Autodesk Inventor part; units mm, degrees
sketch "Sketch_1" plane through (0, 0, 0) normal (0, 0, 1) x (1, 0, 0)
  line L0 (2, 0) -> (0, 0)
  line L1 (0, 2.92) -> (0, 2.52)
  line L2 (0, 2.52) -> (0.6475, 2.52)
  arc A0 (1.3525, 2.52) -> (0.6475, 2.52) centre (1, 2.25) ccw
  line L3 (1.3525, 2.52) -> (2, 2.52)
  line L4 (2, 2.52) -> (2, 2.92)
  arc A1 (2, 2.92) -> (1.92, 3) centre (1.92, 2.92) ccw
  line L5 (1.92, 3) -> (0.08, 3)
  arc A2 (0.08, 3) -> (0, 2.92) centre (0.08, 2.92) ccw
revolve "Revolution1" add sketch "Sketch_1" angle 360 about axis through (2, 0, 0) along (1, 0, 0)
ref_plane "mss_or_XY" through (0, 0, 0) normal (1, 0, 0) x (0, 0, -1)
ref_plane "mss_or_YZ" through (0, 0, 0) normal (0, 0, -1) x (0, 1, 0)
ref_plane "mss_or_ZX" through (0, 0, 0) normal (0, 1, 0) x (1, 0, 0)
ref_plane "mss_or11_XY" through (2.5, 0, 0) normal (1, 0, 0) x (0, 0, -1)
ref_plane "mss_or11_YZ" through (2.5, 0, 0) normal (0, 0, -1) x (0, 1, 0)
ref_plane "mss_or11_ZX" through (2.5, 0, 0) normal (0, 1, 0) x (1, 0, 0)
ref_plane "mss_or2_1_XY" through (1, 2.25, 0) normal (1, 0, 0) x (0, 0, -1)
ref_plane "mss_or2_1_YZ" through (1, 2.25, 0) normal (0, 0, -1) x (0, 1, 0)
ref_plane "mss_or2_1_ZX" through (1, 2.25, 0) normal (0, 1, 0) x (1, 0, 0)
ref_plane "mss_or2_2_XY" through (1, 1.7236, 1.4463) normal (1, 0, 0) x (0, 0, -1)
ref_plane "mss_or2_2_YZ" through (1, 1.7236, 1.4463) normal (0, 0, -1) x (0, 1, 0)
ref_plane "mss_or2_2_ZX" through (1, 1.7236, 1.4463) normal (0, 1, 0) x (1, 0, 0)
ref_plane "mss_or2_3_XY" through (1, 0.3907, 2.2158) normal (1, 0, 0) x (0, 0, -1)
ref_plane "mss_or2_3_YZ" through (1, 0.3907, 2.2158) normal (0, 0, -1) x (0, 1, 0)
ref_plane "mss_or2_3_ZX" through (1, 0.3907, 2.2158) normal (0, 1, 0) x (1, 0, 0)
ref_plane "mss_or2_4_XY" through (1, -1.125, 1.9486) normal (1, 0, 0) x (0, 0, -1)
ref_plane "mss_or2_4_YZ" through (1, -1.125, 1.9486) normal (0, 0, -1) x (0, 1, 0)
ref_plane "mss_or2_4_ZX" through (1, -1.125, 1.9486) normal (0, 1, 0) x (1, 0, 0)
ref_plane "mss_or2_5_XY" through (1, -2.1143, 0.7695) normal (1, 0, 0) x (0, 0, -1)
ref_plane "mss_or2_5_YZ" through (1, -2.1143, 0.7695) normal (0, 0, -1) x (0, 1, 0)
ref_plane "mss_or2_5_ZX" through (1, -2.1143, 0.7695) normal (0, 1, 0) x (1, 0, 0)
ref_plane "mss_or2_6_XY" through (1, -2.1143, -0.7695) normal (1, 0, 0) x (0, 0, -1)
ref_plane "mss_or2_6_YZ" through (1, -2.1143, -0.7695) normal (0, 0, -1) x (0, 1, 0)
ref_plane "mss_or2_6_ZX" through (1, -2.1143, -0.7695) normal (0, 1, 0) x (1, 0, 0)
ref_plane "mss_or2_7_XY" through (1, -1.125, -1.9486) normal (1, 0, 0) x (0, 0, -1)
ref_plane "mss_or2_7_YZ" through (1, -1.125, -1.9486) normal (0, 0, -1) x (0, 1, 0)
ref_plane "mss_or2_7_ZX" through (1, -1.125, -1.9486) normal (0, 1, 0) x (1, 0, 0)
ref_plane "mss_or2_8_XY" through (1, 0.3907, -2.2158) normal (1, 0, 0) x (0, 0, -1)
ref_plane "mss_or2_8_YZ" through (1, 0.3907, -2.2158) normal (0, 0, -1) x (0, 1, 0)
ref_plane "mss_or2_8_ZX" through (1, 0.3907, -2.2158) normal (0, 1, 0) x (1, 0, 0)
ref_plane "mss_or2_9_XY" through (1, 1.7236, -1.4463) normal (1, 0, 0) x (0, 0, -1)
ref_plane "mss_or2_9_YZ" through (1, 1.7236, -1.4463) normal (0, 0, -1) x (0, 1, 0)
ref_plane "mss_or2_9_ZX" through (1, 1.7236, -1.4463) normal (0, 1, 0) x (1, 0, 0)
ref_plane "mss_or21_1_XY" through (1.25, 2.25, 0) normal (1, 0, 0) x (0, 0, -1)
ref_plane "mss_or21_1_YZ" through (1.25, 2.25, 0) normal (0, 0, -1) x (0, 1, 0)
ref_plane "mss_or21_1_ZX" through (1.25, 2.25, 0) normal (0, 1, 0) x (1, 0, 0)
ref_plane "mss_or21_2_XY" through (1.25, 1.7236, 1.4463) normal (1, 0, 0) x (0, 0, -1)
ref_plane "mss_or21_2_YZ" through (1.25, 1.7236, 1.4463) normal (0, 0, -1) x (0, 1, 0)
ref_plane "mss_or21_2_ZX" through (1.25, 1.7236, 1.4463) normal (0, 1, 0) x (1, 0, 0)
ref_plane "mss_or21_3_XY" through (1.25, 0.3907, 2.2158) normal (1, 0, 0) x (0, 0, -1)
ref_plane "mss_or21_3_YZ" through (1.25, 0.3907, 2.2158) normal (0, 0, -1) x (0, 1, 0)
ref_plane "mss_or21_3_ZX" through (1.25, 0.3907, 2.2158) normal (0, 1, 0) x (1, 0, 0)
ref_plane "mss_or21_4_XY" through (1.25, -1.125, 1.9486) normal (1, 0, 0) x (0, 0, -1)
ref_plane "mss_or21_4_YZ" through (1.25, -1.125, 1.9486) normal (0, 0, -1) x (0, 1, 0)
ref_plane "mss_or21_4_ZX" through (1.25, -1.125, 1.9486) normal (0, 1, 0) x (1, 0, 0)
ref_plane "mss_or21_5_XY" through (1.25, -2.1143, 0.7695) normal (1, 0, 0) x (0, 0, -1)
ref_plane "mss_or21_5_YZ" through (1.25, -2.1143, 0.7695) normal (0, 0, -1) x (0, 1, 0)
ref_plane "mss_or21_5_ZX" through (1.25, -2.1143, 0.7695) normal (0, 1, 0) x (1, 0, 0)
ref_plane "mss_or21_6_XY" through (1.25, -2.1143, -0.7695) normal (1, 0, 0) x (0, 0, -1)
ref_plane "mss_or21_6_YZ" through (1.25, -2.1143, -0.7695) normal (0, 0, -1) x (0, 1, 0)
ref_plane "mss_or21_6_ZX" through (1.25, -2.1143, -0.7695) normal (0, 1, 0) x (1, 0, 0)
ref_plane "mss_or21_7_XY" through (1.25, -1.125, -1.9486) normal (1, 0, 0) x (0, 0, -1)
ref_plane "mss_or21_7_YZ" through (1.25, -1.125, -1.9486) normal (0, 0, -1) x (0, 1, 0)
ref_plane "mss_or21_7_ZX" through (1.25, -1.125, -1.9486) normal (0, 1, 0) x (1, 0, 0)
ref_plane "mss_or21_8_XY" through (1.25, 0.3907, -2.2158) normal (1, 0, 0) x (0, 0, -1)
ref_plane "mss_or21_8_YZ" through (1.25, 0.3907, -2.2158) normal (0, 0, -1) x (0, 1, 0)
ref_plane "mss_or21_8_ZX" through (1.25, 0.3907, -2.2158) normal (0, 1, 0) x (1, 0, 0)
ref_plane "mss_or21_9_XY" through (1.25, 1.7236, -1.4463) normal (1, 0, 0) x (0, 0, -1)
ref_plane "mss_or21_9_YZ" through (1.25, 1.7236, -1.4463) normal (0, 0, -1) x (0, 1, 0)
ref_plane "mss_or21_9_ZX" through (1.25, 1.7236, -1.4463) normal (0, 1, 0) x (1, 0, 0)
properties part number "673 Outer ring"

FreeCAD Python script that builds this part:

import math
import FreeCAD as App
import Part
import Sketcher
from FreeCAD import Vector

doc = App.newDocument("Part")
params = doc.addObject("Spreadsheet::Sheet", "Params")
for row, (alias, value) in enumerate([
    ("sketch1_radius", "0.08 mm"),
    ("sketch1_height", "0.4 mm"),
    ("revolution_angle", "360 deg"),
], start=1):
    params.set(f"A{row}", alias)
    params.set(f"B{row}", "=" + value)
    params.setAlias(f"B{row}", alias)

body = doc.addObject("PartDesign::Body", "Body")

sketch1 = body.newObject("Sketcher::SketchObject", "Sketch")
sketch1.AttachmentSupport = (doc.getObject("XY_Plane"), [""])
sketch1.MapMode = "FlatFace"
sketch1.addGeometry([
    Part.ArcOfCircle(Part.Circle(Vector(0.08, 2.92, 0), Vector(0, 0, 1), 0.08), math.radians(90), math.radians(180)),
    Part.LineSegment(Vector(0, 2.92, 0), Vector(0, 2.52, 0)),
    Part.LineSegment(Vector(0, 2.52, 0), Vector(0.65, 2.52, 0)),
    Part.ArcOfCircle(Part.Circle(Vector(1, 2.25, 0), Vector(0, 0, 1), 0.44), math.radians(37), math.radians(143)),
    Part.LineSegment(Vector(1.35, 2.52, 0), Vector(2, 2.52, 0)),
    Part.LineSegment(Vector(2, 2.52, 0), Vector(2, 2.92, 0)),
    Part.ArcOfCircle(Part.Circle(Vector(1.92, 2.92, 0), Vector(0, 0, 1), 0.08), math.radians(0), math.radians(90)),
    Part.LineSegment(Vector(1.92, 3, 0), Vector(0.08, 3, 0)),
], False)
sketch1.addConstraint([
    Sketcher.Constraint("Tangent", 0, 2, 1, 1),
    Sketcher.Constraint("Coincident", 1, 2, 2, 1),
    Sketcher.Constraint("Coincident", 2, 2, 3, 2),
    Sketcher.Constraint("Coincident", 3, 1, 4, 1),
    Sketcher.Constraint("Coincident", 4, 2, 5, 1),
    Sketcher.Constraint("Tangent", 5, 2, 6, 1),
    Sketcher.Constraint("Tangent", 6, 2, 7, 1),
    Sketcher.Constraint("Tangent", 7, 2, 0, 1),
    Sketcher.Constraint("Vertical", 1),
    Sketcher.Constraint("Horizontal", 2),
    Sketcher.Constraint("Horizontal", 4),
    Sketcher.Constraint("Vertical", 5),
    Sketcher.Constraint("Horizontal", 7),
    Sketcher.Constraint("Equal", 0, 6),
    Sketcher.Constraint("PointOnObject", 0, 2, -2),
    Sketcher.Constraint("Horizontal", 2, 2, 3, 1),
    Sketcher.Constraint("Equal", 2, 4),
    Sketcher.Constraint("Radius", 0, 0.08),
    Sketcher.Constraint("DistanceY", 1, 2, 1, 1, 0.4),
    Sketcher.Constraint("DistanceX", -1, 1, 3, 3, 1.0),
    Sketcher.Constraint("DistanceY", -1, 1, 6, 2, 3.0),
    Sketcher.Constraint("Radius", 3, 0.444),
    Sketcher.Constraint("DistanceY", -1, 1, 3, 3, 2.25),
])
sketch1.setExpression("Constraints[17]", "Params.sketch1_radius")
sketch1.setExpression("Constraints[18]", "Params.sketch1_height")
revolution = body.newObject("PartDesign::Revolution", "Revolution")
revolution.Profile = sketch1
revolution.ReferenceAxis = (sketch1, ["H_Axis"])
revolution.setExpression("Angle", "Params.revolution_angle")

doc.recompute()
